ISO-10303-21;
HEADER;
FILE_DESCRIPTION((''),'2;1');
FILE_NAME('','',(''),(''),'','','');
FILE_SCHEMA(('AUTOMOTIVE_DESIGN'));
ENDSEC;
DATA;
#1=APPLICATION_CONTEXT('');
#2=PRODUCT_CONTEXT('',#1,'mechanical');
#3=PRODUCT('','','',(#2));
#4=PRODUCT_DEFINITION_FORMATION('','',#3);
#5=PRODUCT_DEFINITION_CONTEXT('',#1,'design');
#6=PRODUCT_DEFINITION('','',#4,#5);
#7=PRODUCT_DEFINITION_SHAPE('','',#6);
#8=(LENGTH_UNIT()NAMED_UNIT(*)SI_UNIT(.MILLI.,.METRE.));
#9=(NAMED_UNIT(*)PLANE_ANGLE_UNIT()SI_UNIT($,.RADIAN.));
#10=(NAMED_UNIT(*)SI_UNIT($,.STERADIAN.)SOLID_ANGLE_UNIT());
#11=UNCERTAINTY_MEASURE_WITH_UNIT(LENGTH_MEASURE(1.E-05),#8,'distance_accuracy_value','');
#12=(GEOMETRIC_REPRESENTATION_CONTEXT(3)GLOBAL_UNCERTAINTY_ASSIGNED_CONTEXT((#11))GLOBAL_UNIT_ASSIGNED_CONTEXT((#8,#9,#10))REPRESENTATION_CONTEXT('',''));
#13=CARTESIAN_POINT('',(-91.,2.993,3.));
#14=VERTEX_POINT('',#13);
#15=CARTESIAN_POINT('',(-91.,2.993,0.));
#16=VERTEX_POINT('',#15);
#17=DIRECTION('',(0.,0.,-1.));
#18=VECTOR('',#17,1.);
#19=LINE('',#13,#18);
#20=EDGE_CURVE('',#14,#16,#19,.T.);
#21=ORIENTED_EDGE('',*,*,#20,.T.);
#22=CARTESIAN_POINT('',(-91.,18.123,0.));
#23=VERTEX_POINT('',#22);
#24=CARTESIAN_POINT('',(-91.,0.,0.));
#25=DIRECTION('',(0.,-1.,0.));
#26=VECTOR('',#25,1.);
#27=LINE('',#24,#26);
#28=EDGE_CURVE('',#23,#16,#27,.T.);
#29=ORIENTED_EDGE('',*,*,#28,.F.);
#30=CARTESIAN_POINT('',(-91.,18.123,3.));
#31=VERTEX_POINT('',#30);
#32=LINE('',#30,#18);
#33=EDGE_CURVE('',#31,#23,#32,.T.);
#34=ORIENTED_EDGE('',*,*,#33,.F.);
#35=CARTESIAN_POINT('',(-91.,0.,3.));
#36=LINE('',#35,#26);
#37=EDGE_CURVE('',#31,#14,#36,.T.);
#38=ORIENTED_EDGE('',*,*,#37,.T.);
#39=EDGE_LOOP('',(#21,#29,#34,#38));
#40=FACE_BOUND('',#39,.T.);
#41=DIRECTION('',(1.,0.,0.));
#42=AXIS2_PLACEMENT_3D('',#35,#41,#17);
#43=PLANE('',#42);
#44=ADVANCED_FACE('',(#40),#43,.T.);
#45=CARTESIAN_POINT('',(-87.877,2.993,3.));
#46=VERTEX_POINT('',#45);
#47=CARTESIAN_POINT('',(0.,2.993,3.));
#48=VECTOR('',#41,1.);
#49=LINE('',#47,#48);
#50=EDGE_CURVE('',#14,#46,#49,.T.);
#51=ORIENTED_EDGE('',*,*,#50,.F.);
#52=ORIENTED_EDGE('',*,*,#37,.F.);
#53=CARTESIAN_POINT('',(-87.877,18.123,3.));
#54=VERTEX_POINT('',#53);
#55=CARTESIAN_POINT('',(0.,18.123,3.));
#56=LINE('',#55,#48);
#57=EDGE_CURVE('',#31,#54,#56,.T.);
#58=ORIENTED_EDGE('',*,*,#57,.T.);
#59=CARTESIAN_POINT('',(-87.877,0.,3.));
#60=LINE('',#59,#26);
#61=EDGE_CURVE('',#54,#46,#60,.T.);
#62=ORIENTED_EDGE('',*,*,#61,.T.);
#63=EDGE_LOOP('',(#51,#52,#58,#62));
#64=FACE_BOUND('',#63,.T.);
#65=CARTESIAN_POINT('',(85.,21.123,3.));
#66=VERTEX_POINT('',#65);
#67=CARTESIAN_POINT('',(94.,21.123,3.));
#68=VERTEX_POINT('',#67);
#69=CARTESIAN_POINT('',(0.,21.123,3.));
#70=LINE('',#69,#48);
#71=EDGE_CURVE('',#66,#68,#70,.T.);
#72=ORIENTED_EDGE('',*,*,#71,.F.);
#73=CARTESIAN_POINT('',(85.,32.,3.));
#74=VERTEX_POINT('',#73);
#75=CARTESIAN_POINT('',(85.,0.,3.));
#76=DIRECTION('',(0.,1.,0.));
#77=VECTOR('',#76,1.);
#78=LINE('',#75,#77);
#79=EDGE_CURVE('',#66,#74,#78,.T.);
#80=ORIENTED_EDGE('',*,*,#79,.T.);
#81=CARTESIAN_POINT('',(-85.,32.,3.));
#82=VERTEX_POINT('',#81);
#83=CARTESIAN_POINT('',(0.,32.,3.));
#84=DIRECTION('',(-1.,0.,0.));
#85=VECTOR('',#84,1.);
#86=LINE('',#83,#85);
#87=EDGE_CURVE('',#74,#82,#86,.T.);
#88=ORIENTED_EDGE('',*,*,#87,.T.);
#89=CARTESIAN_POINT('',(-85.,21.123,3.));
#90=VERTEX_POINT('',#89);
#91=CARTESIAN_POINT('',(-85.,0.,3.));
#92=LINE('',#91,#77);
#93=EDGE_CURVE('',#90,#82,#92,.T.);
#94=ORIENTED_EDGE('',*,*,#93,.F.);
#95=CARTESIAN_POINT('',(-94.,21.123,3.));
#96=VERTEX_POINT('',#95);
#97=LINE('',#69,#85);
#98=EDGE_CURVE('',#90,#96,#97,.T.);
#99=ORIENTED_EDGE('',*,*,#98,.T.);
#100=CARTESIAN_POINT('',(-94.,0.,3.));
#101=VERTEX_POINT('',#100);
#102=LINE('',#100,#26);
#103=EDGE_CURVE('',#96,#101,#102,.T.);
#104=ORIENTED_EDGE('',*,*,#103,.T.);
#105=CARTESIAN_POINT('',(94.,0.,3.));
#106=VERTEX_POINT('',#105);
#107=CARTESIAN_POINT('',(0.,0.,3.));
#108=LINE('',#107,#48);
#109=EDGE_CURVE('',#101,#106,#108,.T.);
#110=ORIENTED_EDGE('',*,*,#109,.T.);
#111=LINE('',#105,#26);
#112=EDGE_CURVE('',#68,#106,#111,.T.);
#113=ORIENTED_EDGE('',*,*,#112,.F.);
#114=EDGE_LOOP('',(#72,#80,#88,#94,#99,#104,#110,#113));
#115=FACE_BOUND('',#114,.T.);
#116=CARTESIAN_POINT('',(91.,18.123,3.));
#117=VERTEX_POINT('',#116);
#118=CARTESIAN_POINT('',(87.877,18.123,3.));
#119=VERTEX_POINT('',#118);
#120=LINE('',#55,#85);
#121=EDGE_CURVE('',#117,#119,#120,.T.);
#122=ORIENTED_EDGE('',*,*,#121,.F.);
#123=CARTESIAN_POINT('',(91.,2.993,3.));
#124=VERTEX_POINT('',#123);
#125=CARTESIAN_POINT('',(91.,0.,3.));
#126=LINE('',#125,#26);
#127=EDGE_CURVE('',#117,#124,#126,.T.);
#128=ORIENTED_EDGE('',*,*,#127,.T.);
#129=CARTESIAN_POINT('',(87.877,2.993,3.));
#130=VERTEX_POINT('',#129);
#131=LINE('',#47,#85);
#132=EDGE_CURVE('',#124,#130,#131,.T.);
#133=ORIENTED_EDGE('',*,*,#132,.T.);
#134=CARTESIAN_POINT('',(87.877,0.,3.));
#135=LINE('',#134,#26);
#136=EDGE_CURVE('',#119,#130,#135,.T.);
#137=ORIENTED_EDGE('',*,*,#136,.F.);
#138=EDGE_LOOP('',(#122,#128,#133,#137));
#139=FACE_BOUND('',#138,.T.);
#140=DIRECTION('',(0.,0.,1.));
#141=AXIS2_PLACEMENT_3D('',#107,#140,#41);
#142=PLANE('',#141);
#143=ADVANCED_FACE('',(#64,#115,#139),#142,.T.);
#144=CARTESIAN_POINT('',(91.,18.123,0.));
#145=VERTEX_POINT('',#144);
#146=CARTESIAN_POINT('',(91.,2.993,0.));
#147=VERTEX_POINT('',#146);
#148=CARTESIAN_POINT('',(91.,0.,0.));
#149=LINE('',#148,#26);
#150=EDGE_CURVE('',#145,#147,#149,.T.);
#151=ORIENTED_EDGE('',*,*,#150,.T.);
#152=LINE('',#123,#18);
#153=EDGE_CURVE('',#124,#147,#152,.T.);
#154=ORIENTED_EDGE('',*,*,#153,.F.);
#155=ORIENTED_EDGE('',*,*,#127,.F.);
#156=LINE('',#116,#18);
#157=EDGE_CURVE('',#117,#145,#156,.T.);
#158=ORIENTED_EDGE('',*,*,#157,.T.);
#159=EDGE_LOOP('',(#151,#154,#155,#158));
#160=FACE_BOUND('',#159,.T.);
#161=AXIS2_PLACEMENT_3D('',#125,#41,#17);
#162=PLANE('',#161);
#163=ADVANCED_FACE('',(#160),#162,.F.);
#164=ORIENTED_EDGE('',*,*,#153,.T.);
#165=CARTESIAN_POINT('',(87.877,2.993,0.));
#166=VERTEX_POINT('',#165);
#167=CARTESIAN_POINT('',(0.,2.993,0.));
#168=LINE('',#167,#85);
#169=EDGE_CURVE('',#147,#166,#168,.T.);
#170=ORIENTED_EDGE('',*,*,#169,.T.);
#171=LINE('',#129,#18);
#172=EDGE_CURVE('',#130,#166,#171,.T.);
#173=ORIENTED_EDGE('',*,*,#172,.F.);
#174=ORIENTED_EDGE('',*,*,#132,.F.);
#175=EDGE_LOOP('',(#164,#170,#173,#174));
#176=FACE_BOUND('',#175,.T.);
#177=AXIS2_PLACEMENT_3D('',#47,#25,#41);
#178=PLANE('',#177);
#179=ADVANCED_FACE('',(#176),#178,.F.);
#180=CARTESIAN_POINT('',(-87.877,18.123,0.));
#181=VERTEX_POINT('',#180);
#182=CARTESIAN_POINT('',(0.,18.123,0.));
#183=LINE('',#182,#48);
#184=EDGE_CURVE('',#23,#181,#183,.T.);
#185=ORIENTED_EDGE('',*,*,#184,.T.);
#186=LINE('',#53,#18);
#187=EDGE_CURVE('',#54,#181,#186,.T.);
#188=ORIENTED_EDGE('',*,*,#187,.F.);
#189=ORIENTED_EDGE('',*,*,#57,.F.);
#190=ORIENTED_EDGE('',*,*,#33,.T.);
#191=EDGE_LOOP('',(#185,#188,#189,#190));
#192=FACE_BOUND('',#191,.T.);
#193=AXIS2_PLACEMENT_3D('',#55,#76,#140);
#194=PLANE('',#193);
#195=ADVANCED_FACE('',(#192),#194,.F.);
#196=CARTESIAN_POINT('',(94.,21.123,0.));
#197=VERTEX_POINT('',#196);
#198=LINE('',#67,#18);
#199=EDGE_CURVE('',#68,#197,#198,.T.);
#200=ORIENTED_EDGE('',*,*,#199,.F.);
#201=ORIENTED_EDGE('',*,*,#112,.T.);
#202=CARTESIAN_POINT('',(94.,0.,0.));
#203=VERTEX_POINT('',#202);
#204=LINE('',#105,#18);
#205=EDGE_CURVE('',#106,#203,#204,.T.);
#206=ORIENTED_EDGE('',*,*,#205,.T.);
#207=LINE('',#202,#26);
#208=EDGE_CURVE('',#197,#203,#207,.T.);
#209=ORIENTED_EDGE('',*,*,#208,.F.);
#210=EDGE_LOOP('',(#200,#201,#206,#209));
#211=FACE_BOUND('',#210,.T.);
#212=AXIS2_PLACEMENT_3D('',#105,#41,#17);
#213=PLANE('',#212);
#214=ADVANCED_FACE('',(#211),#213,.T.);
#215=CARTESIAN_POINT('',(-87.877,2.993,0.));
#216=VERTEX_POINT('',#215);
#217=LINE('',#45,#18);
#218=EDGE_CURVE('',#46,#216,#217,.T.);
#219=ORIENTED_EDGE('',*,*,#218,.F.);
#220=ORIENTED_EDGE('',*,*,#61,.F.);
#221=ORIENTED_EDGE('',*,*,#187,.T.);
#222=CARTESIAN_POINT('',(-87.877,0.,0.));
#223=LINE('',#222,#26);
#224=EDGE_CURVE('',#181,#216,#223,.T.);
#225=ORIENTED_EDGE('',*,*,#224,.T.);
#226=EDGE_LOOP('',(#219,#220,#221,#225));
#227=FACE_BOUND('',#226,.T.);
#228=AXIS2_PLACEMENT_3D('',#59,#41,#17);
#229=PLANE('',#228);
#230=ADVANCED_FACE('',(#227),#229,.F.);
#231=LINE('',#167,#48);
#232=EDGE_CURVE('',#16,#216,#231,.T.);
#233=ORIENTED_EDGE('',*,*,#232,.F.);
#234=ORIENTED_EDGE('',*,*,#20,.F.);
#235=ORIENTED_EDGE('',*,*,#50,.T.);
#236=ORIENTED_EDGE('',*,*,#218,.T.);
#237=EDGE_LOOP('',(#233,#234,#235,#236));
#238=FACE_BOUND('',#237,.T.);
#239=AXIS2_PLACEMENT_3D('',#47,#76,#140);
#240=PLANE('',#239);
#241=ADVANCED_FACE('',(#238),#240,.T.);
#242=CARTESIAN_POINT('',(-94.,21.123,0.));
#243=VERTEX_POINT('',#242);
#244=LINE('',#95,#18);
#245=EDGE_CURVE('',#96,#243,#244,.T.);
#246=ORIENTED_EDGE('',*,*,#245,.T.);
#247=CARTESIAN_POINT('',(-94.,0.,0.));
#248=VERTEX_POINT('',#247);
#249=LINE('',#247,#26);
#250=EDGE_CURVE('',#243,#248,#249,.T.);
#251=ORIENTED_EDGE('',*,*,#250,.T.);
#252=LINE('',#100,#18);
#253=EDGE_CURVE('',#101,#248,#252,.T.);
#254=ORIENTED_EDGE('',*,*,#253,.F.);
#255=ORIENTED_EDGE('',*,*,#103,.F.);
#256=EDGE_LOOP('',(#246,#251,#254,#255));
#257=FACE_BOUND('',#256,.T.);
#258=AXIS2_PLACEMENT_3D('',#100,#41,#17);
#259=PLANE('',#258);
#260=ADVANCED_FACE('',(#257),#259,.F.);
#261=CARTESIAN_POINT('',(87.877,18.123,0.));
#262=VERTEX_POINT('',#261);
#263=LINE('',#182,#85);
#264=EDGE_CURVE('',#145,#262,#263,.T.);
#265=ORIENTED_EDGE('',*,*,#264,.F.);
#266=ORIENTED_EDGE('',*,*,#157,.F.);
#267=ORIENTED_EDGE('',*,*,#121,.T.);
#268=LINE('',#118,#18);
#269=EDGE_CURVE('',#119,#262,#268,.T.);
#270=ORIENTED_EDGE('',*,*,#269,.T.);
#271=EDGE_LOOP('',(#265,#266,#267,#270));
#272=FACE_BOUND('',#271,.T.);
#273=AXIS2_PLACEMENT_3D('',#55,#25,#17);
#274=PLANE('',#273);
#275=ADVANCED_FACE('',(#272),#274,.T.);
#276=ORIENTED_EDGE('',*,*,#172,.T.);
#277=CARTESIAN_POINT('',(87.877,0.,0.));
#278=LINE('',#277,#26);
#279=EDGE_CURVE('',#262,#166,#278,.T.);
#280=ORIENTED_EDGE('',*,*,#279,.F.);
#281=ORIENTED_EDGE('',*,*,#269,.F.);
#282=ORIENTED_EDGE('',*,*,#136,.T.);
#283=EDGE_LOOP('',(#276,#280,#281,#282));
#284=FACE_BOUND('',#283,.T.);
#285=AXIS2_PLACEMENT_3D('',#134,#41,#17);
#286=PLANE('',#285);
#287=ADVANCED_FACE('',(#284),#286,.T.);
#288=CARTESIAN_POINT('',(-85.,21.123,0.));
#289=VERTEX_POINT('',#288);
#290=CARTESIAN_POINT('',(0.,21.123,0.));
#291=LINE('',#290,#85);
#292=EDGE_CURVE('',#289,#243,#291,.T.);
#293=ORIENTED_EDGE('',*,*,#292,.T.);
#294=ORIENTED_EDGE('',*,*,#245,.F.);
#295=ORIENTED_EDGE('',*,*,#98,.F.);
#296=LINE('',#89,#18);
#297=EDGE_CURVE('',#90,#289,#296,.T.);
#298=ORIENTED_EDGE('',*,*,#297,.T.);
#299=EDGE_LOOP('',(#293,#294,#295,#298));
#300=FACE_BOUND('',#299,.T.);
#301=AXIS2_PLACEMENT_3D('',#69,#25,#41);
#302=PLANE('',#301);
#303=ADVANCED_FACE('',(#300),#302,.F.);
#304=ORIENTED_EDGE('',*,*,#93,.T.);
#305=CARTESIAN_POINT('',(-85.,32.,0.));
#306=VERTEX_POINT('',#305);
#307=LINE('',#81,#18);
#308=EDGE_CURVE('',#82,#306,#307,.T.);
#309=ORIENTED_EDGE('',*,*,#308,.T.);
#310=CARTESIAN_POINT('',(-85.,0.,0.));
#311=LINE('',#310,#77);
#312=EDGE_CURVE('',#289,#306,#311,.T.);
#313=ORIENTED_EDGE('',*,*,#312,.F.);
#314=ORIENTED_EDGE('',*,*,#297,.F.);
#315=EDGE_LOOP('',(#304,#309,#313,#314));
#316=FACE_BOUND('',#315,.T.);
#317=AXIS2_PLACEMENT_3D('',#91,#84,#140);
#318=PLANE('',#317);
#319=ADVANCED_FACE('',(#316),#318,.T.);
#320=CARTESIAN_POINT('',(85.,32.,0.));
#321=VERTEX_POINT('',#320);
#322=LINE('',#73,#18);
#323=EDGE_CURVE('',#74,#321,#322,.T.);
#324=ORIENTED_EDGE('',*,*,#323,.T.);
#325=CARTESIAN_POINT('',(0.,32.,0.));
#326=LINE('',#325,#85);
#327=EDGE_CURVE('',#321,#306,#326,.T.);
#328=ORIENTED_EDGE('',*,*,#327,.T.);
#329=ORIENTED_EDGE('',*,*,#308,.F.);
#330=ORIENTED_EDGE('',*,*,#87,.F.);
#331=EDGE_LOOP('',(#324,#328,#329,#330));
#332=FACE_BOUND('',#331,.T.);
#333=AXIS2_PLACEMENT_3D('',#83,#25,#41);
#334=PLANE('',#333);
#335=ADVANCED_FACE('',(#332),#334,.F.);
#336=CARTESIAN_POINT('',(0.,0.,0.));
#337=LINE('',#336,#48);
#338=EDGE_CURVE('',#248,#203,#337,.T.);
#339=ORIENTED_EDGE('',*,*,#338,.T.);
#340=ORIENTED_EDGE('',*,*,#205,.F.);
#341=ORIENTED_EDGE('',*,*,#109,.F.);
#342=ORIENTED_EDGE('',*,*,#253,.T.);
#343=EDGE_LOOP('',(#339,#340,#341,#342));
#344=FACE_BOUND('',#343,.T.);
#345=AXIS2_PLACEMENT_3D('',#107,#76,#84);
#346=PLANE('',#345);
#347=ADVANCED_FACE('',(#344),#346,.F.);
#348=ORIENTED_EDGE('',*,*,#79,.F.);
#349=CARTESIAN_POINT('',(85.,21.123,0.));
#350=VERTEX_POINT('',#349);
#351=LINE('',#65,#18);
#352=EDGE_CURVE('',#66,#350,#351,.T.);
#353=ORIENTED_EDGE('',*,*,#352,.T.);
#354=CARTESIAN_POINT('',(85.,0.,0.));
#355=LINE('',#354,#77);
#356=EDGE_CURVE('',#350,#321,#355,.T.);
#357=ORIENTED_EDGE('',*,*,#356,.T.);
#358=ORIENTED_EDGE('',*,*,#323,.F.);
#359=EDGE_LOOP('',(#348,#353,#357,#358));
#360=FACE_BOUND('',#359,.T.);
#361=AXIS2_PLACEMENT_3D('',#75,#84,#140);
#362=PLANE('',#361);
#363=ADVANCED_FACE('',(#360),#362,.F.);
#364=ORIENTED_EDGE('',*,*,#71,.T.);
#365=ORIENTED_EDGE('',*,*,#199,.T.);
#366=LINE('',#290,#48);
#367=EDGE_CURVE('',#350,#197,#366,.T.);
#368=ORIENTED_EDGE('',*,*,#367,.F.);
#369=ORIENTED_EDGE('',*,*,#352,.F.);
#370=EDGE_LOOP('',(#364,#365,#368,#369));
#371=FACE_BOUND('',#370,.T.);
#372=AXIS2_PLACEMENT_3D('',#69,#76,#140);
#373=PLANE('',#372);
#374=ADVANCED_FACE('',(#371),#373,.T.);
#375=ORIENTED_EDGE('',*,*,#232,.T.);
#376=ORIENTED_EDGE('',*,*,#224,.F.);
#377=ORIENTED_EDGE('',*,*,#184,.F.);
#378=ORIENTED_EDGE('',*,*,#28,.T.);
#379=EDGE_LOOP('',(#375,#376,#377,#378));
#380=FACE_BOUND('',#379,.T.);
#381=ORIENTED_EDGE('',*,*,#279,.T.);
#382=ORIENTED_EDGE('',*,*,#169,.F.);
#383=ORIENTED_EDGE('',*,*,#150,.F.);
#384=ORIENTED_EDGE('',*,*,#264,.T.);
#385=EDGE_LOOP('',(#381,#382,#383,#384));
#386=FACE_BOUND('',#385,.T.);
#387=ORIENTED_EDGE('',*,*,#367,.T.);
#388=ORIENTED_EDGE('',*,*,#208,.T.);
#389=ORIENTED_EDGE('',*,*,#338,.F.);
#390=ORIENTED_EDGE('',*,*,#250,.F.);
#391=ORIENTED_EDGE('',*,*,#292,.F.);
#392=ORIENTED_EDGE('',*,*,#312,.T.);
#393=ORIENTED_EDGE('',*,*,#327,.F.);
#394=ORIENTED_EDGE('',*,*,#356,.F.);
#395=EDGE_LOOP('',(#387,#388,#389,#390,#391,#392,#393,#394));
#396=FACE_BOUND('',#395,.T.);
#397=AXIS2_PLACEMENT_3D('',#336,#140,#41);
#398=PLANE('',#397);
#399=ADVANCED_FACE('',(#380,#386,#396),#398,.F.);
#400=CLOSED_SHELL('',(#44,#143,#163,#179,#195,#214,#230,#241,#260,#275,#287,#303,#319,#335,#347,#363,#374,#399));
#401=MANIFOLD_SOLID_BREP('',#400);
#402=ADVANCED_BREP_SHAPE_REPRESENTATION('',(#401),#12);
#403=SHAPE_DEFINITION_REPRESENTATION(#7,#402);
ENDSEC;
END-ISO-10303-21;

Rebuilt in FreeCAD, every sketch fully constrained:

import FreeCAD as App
import Part
import Sketcher
from FreeCAD import Vector

doc = App.newDocument("Part")
params = doc.addObject("Spreadsheet::Sheet", "Params")
for row, (alias, value) in enumerate([
    ("sketch1_width", "188 mm"),
    ("sketch1_width2", "9 mm"),
    ("sketch1_height", "15.13 mm"),
    ("pad1_length", "3 mm"),
], start=1):
    params.set(f"A{row}", alias)
    params.set(f"B{row}", "=" + value)
    params.setAlias(f"B{row}", alias)

body = doc.addObject("PartDesign::Body", "Body")

sketch1 = body.newObject("Sketcher::SketchObject", "Sketch")
sketch1.AttachmentSupport = (doc.getObject("XY_Plane"), [""])
sketch1.MapMode = "FlatFace"
sketch1.addGeometry([
    Part.LineSegment(Vector(-94, 0, 0), Vector(94, 0, 0)),
    Part.LineSegment(Vector(94, 0, 0), Vector(94, 21.1, 0)),
    Part.LineSegment(Vector(94, 21.1, 0), Vector(85, 21.1, 0)),
    Part.LineSegment(Vector(85, 21.1, 0), Vector(85, 32, 0)),
    Part.LineSegment(Vector(85, 32, 0), Vector(-85, 32, 0)),
    Part.LineSegment(Vector(-85, 32, 0), Vector(-85, 21.1, 0)),
    Part.LineSegment(Vector(-85, 21.1, 0), Vector(-94, 21.1, 0)),
    Part.LineSegment(Vector(-94, 21.1, 0), Vector(-94, 0, 0)),
    Part.LineSegment(Vector(-87.9, 3, 0), Vector(-91, 3, 0)),
    Part.LineSegment(Vector(-91, 3, 0), Vector(-91, 18.1, 0)),
    Part.LineSegment(Vector(-91, 18.1, 0), Vector(-87.9, 18.1, 0)),
    Part.LineSegment(Vector(-87.9, 18.1, 0), Vector(-87.9, 3, 0)),
    Part.LineSegment(Vector(91, 3, 0), Vector(87.9, 3, 0)),
    Part.LineSegment(Vector(87.9, 3, 0), Vector(87.9, 18.1, 0)),
    Part.LineSegment(Vector(87.9, 18.1, 0), Vector(91, 18.1, 0)),
    Part.LineSegment(Vector(91, 18.1, 0), Vector(91, 3, 0)),
], False)
sketch1.addConstraint([
    Sketcher.Constraint("Coincident", 0, 2, 1, 1),
    Sketcher.Constraint("Coincident", 1, 2, 2, 1),
    Sketcher.Constraint("Coincident", 2, 2, 3, 1),
    Sketcher.Constraint("Coincident", 3, 2, 4, 1),
    Sketcher.Constraint("Coincident", 4, 2, 5, 1),
    Sketcher.Constraint("Coincident", 5, 2, 6, 1),
    Sketcher.Constraint("Coincident", 6, 2, 7, 1),
    Sketcher.Constraint("Coincident", 7, 2, 0, 1),
    Sketcher.Constraint("Coincident", 8, 2, 9, 1),
    Sketcher.Constraint("Coincident", 9, 2, 10, 1),
    Sketcher.Constraint("Coincident", 10, 2, 11, 1),
    Sketcher.Constraint("Coincident", 11, 2, 8, 1),
    Sketcher.Constraint("Coincident", 12, 2, 13, 1),
    Sketcher.Constraint("Coincident", 13, 2, 14, 1),
    Sketcher.Constraint("Coincident", 14, 2, 15, 1),
    Sketcher.Constraint("Coincident", 15, 2, 12, 1),
    Sketcher.Constraint("Horizontal", 0),
    Sketcher.Constraint("Vertical", 1),
    Sketcher.Constraint("Horizontal", 2),
    Sketcher.Constraint("Vertical", 3),
    Sketcher.Constraint("Horizontal", 4),
    Sketcher.Constraint("Vertical", 5),
    Sketcher.Constraint("Horizontal", 6),
    Sketcher.Constraint("Vertical", 7),
    Sketcher.Constraint("Horizontal", 8),
    Sketcher.Constraint("Vertical", 9),
    Sketcher.Constraint("Horizontal", 10),
    Sketcher.Constraint("Vertical", 11),
    Sketcher.Constraint("Horizontal", 12),
    Sketcher.Constraint("Vertical", 13),
    Sketcher.Constraint("Horizontal", 14),
    Sketcher.Constraint("Vertical", 15),
    Sketcher.Constraint("Symmetric", 0, 2, 7, 2, -1, 1),
    Sketcher.Constraint("Symmetric", 2, 2, 5, 2, -2),
    Sketcher.Constraint("Symmetric", 11, 2, 12, 2, -2),
    Sketcher.Constraint("Symmetric", 9, 2, 14, 2, -2),
    Sketcher.Constraint("DistanceX", 0, 1, 0, 2, 188.0),
    Sketcher.Constraint("DistanceX", 2, 2, 2, 1, 9.0),
    Sketcher.Constraint("DistanceY", -1, 1, 3, 2, 32.0),
    Sketcher.Constraint("DistanceX", 8, 2, -1, 1, 91.0),
    Sketcher.Constraint("DistanceY", 9, 2, 6, 2, 3.0),
    Sketcher.Constraint("DistanceY", 9, 1, 9, 2, 15.13),
    Sketcher.Constraint("DistanceX", 8, 2, 8, 1, 3.123),
    Sketcher.Constraint("DistanceY", 1, 1, 1, 2, 21.123),
])
sketch1.setExpression("Constraints[36]", "Params.sketch1_width")
sketch1.setExpression("Constraints[37]", "Params.sketch1_width2")
sketch1.setExpression("Constraints[41]", "Params.sketch1_height")
pad1 = body.newObject("PartDesign::Pad", "Pad")
pad1.Profile = sketch1
pad1.setExpression("Length", "Params.pad1_length")

doc.recompute()
